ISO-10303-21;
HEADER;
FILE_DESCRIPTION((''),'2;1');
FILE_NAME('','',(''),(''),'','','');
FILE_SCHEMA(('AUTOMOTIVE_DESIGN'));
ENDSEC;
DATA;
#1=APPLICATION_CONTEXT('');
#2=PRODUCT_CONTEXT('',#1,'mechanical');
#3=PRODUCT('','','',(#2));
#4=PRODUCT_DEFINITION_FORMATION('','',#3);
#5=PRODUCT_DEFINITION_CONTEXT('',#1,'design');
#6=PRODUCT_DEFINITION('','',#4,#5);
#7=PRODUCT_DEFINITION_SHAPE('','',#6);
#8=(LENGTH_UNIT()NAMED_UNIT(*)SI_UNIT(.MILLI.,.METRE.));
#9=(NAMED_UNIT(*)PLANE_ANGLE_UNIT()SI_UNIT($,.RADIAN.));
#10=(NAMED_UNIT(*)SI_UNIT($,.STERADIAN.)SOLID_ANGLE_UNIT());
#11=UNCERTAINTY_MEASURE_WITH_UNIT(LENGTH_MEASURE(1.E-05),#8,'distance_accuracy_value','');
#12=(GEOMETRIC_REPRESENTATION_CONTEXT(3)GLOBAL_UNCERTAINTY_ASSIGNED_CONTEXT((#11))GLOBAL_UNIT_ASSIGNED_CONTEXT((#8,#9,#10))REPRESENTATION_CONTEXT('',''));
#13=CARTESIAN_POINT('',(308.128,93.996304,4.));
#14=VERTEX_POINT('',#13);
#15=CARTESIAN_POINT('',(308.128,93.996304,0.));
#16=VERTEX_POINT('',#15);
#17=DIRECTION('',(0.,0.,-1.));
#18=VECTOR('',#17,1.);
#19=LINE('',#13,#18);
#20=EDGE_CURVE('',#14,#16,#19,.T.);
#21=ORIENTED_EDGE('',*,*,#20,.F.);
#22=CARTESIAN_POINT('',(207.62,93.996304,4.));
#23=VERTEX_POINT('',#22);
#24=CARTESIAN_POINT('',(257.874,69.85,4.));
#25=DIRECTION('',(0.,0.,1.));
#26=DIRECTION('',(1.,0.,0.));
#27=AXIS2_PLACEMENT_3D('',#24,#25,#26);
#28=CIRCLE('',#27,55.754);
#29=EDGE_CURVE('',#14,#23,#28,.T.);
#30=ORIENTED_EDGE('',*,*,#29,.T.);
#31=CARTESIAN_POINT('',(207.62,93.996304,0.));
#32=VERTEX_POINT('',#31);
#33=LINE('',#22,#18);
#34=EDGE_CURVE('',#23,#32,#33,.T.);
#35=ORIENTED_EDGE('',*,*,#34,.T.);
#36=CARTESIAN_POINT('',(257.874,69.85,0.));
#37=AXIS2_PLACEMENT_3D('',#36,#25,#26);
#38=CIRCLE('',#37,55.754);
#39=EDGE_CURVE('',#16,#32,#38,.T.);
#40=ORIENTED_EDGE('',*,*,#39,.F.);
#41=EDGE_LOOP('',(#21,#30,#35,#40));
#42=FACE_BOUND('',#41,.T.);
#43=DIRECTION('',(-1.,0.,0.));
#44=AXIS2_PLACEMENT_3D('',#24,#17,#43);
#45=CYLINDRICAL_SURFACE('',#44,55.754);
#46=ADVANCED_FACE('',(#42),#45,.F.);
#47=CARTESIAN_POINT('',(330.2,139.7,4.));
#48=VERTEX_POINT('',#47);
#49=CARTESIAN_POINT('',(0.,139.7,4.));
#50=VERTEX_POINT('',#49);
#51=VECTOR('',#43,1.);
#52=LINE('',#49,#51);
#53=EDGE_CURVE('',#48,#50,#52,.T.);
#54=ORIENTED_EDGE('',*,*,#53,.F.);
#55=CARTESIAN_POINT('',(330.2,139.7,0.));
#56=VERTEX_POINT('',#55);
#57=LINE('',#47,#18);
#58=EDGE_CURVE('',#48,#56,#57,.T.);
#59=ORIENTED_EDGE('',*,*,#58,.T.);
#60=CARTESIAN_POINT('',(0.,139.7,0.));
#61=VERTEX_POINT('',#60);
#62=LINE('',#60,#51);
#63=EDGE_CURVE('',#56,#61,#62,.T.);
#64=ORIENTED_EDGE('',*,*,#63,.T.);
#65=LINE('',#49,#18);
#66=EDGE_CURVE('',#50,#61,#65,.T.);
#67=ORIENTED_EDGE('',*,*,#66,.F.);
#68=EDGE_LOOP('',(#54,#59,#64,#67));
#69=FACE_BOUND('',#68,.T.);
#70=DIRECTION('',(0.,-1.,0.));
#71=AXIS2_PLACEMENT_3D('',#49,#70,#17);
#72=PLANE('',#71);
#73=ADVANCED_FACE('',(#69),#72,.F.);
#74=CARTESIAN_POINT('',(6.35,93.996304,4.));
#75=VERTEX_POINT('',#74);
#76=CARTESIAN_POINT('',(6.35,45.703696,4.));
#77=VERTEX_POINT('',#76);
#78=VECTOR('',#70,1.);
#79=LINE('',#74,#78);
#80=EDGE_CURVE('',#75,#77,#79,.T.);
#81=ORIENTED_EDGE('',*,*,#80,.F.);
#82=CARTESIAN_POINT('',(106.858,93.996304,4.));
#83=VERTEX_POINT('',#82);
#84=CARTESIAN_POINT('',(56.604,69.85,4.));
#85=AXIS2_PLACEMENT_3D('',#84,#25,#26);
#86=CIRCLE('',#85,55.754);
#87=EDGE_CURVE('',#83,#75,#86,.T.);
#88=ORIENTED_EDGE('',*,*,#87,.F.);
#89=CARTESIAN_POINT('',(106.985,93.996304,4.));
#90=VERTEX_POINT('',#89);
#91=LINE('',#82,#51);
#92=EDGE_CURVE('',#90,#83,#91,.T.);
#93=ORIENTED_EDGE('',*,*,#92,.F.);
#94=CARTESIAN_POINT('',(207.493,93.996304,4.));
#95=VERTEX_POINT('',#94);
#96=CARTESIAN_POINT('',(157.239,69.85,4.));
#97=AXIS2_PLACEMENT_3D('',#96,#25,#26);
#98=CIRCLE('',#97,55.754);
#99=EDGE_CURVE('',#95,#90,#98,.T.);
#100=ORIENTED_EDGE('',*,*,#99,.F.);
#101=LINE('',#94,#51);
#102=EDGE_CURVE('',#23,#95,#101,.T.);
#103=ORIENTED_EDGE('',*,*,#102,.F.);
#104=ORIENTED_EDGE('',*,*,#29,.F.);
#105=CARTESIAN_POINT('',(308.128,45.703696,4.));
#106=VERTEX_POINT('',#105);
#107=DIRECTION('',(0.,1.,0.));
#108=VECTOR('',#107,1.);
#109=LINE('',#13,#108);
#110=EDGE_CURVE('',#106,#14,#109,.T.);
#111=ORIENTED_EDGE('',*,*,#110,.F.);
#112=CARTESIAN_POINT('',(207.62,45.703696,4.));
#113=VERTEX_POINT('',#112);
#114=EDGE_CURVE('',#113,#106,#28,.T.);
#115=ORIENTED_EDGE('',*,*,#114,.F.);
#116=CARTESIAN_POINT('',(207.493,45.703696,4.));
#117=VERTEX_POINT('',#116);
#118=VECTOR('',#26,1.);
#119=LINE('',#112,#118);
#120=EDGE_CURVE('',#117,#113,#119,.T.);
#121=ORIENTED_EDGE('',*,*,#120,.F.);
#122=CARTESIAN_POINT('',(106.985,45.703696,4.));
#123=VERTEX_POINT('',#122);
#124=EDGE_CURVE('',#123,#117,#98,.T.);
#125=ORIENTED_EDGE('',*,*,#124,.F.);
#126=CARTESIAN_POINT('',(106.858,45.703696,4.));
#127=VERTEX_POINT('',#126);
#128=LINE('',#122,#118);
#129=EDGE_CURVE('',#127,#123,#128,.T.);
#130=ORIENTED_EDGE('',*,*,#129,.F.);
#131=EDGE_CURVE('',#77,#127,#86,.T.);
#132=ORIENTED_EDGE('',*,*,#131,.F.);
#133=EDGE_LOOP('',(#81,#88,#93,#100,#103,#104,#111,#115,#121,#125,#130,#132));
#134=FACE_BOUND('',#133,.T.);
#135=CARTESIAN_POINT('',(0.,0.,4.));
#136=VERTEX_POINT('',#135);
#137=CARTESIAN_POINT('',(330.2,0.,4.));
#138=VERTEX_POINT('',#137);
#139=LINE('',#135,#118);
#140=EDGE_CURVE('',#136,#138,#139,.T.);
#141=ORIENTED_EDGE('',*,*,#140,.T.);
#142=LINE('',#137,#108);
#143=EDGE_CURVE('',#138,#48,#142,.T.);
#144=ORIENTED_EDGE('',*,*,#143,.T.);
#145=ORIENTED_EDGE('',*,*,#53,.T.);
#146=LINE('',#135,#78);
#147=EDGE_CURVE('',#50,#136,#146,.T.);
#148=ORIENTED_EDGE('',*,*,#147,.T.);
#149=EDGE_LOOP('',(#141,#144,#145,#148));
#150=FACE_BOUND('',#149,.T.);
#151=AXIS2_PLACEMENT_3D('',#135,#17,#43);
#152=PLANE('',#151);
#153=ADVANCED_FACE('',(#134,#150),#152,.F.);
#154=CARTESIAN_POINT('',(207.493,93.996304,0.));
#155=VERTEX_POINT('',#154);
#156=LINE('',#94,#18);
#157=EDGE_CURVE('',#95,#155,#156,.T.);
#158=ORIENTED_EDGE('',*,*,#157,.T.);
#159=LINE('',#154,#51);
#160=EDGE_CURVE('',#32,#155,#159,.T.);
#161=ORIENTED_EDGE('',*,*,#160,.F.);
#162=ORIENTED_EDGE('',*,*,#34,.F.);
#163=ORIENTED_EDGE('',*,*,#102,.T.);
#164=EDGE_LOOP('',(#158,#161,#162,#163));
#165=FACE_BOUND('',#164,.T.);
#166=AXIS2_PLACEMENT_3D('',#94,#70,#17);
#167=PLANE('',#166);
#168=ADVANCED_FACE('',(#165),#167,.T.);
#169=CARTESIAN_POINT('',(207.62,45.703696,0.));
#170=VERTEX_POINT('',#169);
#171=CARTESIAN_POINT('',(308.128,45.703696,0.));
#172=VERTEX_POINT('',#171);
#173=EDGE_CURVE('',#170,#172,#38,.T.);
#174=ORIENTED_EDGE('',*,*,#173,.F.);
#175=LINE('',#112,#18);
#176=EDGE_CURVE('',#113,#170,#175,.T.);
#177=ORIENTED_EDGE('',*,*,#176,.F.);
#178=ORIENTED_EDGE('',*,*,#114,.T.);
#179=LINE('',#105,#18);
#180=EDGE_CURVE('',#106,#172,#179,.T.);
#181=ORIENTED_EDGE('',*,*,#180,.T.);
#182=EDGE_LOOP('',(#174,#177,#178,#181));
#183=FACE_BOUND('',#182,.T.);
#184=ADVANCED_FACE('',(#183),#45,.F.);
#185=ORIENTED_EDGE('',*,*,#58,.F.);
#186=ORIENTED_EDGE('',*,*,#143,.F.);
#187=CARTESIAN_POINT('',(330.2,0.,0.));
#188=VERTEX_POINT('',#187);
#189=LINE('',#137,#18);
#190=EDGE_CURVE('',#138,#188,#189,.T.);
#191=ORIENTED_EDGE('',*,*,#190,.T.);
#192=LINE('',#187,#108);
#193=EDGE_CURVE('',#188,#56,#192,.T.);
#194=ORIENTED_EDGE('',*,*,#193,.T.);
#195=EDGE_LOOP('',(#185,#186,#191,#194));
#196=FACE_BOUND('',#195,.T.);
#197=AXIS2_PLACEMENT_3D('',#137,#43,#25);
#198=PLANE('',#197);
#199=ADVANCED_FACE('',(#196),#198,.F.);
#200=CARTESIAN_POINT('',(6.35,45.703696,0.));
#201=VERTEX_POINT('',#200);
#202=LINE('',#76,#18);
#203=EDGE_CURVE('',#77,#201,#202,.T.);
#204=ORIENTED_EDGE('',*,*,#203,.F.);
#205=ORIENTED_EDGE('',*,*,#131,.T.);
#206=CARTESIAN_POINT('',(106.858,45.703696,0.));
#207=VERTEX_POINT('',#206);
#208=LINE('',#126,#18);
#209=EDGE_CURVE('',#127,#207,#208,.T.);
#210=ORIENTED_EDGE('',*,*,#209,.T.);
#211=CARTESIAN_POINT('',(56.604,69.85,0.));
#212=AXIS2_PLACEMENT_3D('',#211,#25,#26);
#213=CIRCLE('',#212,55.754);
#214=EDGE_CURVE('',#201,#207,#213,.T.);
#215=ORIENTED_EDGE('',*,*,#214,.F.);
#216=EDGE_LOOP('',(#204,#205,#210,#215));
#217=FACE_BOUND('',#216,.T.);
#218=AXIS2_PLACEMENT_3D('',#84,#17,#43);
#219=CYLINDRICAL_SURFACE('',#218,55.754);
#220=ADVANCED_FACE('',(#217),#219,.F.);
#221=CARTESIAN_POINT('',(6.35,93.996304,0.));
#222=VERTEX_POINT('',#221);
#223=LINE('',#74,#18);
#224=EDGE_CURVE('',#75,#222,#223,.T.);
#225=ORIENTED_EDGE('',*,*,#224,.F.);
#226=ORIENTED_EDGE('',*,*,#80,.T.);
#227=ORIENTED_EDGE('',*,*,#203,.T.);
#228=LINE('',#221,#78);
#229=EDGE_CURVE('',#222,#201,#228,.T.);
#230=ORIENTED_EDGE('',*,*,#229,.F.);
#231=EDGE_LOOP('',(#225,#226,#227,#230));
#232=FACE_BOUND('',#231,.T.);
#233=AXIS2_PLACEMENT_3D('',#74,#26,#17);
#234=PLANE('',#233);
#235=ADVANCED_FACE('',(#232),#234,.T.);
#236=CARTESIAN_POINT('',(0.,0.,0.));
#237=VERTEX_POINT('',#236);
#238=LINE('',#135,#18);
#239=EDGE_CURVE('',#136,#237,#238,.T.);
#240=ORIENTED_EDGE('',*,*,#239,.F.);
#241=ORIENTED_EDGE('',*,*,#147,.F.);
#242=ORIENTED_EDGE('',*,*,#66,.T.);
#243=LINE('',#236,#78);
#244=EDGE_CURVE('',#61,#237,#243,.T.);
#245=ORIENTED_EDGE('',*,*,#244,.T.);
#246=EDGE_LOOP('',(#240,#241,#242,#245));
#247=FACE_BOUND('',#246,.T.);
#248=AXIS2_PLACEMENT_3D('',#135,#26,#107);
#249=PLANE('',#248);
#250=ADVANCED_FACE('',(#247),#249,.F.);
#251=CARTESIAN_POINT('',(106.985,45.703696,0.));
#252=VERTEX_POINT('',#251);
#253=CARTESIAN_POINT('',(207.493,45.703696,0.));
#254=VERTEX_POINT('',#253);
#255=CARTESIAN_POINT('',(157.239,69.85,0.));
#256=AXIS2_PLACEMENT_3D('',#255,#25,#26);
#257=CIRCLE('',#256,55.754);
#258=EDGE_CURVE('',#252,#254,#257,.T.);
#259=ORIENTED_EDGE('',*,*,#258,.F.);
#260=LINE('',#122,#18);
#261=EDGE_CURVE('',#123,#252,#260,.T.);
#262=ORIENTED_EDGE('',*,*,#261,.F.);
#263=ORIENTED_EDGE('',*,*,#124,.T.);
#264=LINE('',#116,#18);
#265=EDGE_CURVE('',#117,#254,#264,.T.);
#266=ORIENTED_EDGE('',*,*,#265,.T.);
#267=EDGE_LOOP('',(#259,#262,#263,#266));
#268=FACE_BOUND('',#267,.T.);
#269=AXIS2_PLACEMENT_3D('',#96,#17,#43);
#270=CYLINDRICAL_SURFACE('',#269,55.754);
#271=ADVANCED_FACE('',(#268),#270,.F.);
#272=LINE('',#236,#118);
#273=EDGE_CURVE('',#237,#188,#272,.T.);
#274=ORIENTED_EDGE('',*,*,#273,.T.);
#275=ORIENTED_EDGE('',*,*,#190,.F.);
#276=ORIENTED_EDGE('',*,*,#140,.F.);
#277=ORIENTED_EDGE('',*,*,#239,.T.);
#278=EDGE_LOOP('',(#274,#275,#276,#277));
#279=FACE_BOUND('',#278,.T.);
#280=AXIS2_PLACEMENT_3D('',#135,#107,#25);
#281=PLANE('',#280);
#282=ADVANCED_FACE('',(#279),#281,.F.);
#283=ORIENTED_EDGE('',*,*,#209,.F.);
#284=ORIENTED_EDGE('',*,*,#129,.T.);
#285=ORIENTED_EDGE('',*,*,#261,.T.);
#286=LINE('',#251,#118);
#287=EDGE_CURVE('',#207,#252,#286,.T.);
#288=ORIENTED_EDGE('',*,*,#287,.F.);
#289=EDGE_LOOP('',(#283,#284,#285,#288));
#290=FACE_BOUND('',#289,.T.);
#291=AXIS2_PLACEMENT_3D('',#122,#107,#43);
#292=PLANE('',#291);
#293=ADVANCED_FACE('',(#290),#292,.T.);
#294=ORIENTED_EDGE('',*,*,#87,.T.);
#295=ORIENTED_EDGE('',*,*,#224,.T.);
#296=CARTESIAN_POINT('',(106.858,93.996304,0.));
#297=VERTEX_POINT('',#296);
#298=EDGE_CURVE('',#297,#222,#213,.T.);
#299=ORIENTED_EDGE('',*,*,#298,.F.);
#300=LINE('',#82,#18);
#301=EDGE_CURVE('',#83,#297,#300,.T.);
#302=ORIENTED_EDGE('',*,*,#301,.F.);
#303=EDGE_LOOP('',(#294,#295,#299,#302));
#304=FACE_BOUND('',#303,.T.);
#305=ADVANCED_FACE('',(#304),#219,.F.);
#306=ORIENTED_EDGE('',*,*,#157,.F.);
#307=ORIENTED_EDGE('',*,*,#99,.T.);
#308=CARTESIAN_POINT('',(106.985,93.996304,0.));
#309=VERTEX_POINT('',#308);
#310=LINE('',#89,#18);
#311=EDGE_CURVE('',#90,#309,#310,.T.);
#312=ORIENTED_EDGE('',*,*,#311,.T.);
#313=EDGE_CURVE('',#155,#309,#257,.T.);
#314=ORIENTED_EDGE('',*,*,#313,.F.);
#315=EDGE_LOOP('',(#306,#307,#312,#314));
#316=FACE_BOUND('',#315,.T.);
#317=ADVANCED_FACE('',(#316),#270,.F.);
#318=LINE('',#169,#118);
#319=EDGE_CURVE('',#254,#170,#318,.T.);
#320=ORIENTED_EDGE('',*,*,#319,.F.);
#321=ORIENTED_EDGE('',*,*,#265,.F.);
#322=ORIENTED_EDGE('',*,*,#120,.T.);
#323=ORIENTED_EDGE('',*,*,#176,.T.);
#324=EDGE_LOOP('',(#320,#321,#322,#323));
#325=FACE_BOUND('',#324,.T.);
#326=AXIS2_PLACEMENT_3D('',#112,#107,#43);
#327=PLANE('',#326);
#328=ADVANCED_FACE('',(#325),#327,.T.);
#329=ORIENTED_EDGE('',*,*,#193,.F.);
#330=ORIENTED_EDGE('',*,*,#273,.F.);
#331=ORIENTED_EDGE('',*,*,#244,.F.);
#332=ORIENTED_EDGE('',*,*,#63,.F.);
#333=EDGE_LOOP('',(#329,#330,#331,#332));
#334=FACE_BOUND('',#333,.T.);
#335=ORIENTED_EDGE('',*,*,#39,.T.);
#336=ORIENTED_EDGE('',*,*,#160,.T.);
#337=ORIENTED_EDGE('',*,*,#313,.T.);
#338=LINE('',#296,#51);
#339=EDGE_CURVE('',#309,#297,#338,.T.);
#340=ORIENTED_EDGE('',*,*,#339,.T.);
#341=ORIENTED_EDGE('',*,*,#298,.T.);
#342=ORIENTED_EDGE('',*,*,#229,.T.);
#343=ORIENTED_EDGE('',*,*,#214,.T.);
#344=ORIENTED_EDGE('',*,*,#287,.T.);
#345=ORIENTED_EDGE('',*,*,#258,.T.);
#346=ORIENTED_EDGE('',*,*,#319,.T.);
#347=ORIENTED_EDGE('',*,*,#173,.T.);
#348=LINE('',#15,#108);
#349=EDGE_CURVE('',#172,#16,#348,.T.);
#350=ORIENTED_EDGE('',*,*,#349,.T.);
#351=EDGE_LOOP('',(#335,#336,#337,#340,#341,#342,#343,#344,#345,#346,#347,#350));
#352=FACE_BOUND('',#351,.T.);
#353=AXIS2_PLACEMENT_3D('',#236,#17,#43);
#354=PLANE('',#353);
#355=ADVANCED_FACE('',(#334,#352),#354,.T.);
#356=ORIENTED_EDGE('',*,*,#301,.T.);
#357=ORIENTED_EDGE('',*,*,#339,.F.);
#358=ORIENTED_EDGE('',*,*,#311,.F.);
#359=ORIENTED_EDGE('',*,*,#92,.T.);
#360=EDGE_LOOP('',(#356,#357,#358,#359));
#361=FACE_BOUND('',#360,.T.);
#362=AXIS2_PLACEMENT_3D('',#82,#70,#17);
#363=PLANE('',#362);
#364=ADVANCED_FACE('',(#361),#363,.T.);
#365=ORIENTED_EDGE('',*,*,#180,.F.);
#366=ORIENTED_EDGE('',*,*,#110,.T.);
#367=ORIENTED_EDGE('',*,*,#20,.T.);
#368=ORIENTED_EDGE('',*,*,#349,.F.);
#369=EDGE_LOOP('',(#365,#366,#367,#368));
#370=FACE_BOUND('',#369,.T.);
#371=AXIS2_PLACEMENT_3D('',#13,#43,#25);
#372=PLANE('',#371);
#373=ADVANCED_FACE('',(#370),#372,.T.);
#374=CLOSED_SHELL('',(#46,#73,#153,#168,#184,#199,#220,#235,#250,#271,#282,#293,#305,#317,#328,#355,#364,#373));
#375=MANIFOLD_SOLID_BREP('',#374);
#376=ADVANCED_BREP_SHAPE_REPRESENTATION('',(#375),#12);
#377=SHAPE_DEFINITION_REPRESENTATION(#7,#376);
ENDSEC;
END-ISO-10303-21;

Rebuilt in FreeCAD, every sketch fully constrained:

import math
import FreeCAD as App
import Part
import Sketcher
Q = App.Units.Quantity

doc = App.newDocument("Part")
body = doc.addObject("PartDesign::Body", "Body")

# Sketch on XY plane
sketch1 = body.newObject("Sketcher::SketchObject", "Sketch")
sketch1.AttachmentSupport = (doc.getObject("XY_Plane"), [""])
sketch1.MapMode = "FlatFace"
sketch1.addGeometry(Part.LineSegment(App.Vector(0, 139.7, 0), App.Vector(0, 0, 0)), False)
sketch1.addGeometry(Part.LineSegment(App.Vector(0, 0, 0), App.Vector(330.2, 0, 0)), False)
sketch1.addGeometry(Part.LineSegment(App.Vector(330.2, 0, 0), App.Vector(330.2, 139.7, 0)), False)
sketch1.addGeometry(Part.LineSegment(App.Vector(330.2, 139.7, 0), App.Vector(0, 139.7, 0)), False)
sketch1.addGeometry(Part.LineSegment(App.Vector(6.35, 45.7, 0), App.Vector(6.35, 94, 0)), False)
sketch1.addGeometry(Part.ArcOfCircle(Part.Circle(App.Vector(56.6, 69.85, 0), App.Vector(0, 0, 1), 55.75), math.radians(26), math.radians(154)), False)
sketch1.addGeometry(Part.LineSegment(App.Vector(106.86, 94, 0), App.Vector(106.98, 94, 0)), False)
sketch1.addGeometry(Part.ArcOfCircle(Part.Circle(App.Vector(157.24, 69.85, 0), App.Vector(0, 0, 1), 55.75), math.radians(26), math.radians(154)), False)
sketch1.addGeometry(Part.LineSegment(App.Vector(207.49, 94, 0), App.Vector(207.62, 94, 0)), False)
sketch1.addGeometry(Part.ArcOfCircle(Part.Circle(App.Vector(257.87, 69.85, 0), App.Vector(0, 0, 1), 55.75), math.radians(26), math.radians(154)), False)
sketch1.addGeometry(Part.LineSegment(App.Vector(308.13, 94, 0), App.Vector(308.13, 45.7, 0)), False)
sketch1.addGeometry(Part.ArcOfCircle(Part.Circle(App.Vector(257.87, 69.85, 0), App.Vector(0, 0, 1), 55.75), math.radians(-154), math.radians(-26)), False)
sketch1.addGeometry(Part.LineSegment(App.Vector(207.62, 45.7, 0), App.Vector(207.49, 45.7, 0)), False)
sketch1.addGeometry(Part.ArcOfCircle(Part.Circle(App.Vector(157.24, 69.85, 0), App.Vector(0, 0, 1), 55.75), math.radians(-154), math.radians(-26)), False)
sketch1.addGeometry(Part.LineSegment(App.Vector(106.98, 45.7, 0), App.Vector(106.86, 45.7, 0)), False)
sketch1.addGeometry(Part.ArcOfCircle(Part.Circle(App.Vector(56.6, 69.85, 0), App.Vector(0, 0, 1), 55.75), math.radians(-154), math.radians(-26)), False)
sketch1.addConstraint(Sketcher.Constraint("Coincident", 0, 2, 1, 1))
sketch1.addConstraint(Sketcher.Constraint("Coincident", 1, 2, 2, 1))
sketch1.addConstraint(Sketcher.Constraint("Coincident", 2, 2, 3, 1))
sketch1.addConstraint(Sketcher.Constraint("Coincident", 3, 2, 0, 1))
sketch1.addConstraint(Sketcher.Constraint("Coincident", 4, 2, 5, 2))
sketch1.addConstraint(Sketcher.Constraint("Coincident", 5, 1, 6, 1))
sketch1.addConstraint(Sketcher.Constraint("Coincident", 6, 2, 7, 2))
sketch1.addConstraint(Sketcher.Constraint("Coincident", 7, 1, 8, 1))
sketch1.addConstraint(Sketcher.Constraint("Coincident", 8, 2, 9, 2))
sketch1.addConstraint(Sketcher.Constraint("Coincident", 9, 1, 10, 1))
sketch1.addConstraint(Sketcher.Constraint("Coincident", 10, 2, 11, 2))
sketch1.addConstraint(Sketcher.Constraint("Coincident", 11, 1, 12, 1))
sketch1.addConstraint(Sketcher.Constraint("Coincident", 12, 2, 13, 2))
sketch1.addConstraint(Sketcher.Constraint("Coincident", 13, 1, 14, 1))
sketch1.addConstraint(Sketcher.Constraint("Coincident", 14, 2, 15, 2))
sketch1.addConstraint(Sketcher.Constraint("Coincident", 15, 1, 4, 1))
sketch1.addConstraint(Sketcher.Constraint("Vertical", 0))
sketch1.addConstraint(Sketcher.Constraint("Horizontal", 1))
sketch1.addConstraint(Sketcher.Constraint("Vertical", 2))
sketch1.addConstraint(Sketcher.Constraint("Horizontal", 3))
sketch1.addConstraint(Sketcher.Constraint("Vertical", 4))
sketch1.addConstraint(Sketcher.Constraint("Horizontal", 6))
sketch1.addConstraint(Sketcher.Constraint("Horizontal", 8))
sketch1.addConstraint(Sketcher.Constraint("Vertical", 10))
sketch1.addConstraint(Sketcher.Constraint("Horizontal", 12))
sketch1.addConstraint(Sketcher.Constraint("Horizontal", 14))
sketch1.addConstraint(Sketcher.Constraint("Coincident", 0, 2, -1, 1))
sketch1.addConstraint(Sketcher.Constraint("Coincident", 11, 3, 9, 3))
sketch1.addConstraint(Sketcher.Constraint("Coincident", 13, 3, 7, 3))
sketch1.addConstraint(Sketcher.Constraint("Coincident", 15, 3, 5, 3))
sketch1.addConstraint(Sketcher.Constraint("Equal", 5, 7))
sketch1.addConstraint(Sketcher.Constraint("Equal", 7, 9))
sketch1.addConstraint(Sketcher.Constraint("Equal", 9, 11))
sketch1.addConstraint(Sketcher.Constraint("Equal", 11, 13))
sketch1.addConstraint(Sketcher.Constraint("Equal", 13, 15))
sketch1.addConstraint(Sketcher.Constraint("Horizontal", 5, 3, 7, 3))
sketch1.addConstraint(Sketcher.Constraint("Horizontal", 7, 3, 9, 3))
sketch1.addConstraint(Sketcher.Constraint("Horizontal", 4, 2, 5, 1))
sketch1.addConstraint(Sketcher.Constraint("Horizontal", 6, 2, 7, 1))
sketch1.addConstraint(Sketcher.Constraint("Horizontal", 8, 2, 9, 1))
sketch1.addConstraint(Sketcher.Constraint("Horizontal", 10, 2, 11, 1))
sketch1.addConstraint(Sketcher.Constraint("Horizontal", 12, 2, 13, 1))
sketch1.addConstraint(Sketcher.Constraint("Equal", 6, 8))
sketch1.addConstraint(Sketcher.Constraint("DistanceX", 1, 1, 1, 2, Q("13 in")))
sketch1.addConstraint(Sketcher.Constraint("DistanceY", 0, 2, 0, 1, Q("5.5 in")))
sketch1.addConstraint(Sketcher.Constraint("DistanceX", 6, 1, 6, 2, Q("0.005 in")))
sketch1.addConstraint(Sketcher.Constraint("DistanceY", -1, 1, 5, 3, Q("2.75 in")))
sketch1.addConstraint(Sketcher.Constraint("DistanceX", -1, 1, 4, 2, Q("0.25 in")))
sketch1.addConstraint(Sketcher.Constraint("Radius", 5, Q("55.754 mm")))
sketch1.addConstraint(Sketcher.Constraint("DistanceY", 4, 1, 4, 2, Q("48.292608 mm")))
pad1 = body.newObject("PartDesign::Pad", "Pad")
pad1.Profile = sketch1
pad1.Length = 4

doc.recompute()
